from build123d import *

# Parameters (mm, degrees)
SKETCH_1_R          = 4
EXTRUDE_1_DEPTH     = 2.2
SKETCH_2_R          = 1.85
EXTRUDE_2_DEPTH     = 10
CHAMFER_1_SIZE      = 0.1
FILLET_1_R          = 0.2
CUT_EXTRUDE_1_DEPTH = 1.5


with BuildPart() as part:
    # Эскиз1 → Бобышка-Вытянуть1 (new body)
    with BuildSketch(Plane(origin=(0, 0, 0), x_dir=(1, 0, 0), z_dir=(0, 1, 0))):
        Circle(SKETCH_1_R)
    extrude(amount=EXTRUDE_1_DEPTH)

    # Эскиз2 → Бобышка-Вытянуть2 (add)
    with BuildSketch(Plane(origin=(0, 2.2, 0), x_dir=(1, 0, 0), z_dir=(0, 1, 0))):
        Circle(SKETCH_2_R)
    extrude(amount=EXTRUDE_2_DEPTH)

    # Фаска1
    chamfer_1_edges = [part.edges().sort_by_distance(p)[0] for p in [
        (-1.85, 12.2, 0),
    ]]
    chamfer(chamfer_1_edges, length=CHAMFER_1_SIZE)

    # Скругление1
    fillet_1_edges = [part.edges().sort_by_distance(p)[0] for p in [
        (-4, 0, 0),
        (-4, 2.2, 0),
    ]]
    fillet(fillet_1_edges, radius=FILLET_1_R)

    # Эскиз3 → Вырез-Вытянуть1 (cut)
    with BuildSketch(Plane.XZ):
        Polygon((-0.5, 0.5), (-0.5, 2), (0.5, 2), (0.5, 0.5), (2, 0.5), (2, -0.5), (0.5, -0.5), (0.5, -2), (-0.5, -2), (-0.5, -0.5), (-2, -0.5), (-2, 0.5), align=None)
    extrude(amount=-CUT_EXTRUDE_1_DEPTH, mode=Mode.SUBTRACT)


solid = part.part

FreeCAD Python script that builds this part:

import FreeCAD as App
import Part
import Sketcher
from FreeCAD import Vector


def edges_at(feature, points):
    """Names of the edges that pass closest to the given points."""
    edges = feature.Shape.Edges
    near = lambda p: min(range(len(edges)), key=lambda i: edges[i].distToShape(Part.Vertex(*p))[0])
    return sorted({f"Edge{near(p) + 1}" for p in points})


def add_polygon(sketch, points):
    """Adds a closed chain of lines whose ends are joined by coincident constraints."""
    first, n = sketch.GeometryCount, len(points)
    for a, b in zip(points, points[1:] + points[:1]):
        sketch.addGeometry(Part.LineSegment(App.Vector(*a, 0), App.Vector(*b, 0)), False)
    for i in range(n):
        sketch.addConstraint(Sketcher.Constraint("Coincident", first + i, 2, first + (i + 1) % n, 1))

doc = App.newDocument("Part")
body = doc.addObject("PartDesign::Body", "Body")

sketch1 = body.newObject("Sketcher::SketchObject", "Sketch")
sketch1.AttachmentSupport = (doc.getObject("XZ_Plane"), [""])
sketch1.MapMode = "FlatFace"
sketch1.addGeometry(Part.Circle(Vector(0, 0, 0), Vector(0, 0, 1), 4), False)
sketch1.addConstraint([
    Sketcher.Constraint("Coincident", 0, 3, -1, 1),
    Sketcher.Constraint("Diameter", 0, 8.0),
])
pad1 = body.newObject("PartDesign::Pad", "Pad")
pad1.Profile = sketch1
pad1.Length = 2.2
pad1.Reversed = True

sketch2 = body.newObject("Sketcher::SketchObject", "Sketch001")
sketch2.AttachmentSupport = (doc.getObject("XZ_Plane"), [""])
sketch2.MapMode = "FlatFace"
sketch2.AttachmentOffset = App.Placement(Vector(0, 0, -2.2), App.Rotation())
sketch2.addGeometry(Part.Circle(Vector(0, 0, 0), Vector(0, 0, 1), 1.9), False)
sketch2.addConstraint([
    Sketcher.Constraint("Coincident", 0, 3, -1, 1),
    Sketcher.Constraint("Diameter", 0, 3.7),
])
pad2 = body.newObject("PartDesign::Pad", "Pad001")
pad2.Profile = sketch2
pad2.Length = 10
pad2.Reversed = True
doc.recompute()

chamfer = body.newObject("PartDesign::Chamfer", "Chamfer")
chamfer.Base = (pad2, edges_at(pad2, [(-1.85, 12.2, 0)]))
chamfer.Size = 0.1
doc.recompute()

fillet = body.newObject("PartDesign::Fillet", "Fillet")
fillet.Base = (chamfer, edges_at(chamfer, [(-4, 0, 0), (-4, 2.2, 0)]))
fillet.Radius = 0.2

sketch3 = body.newObject("Sketcher::SketchObject", "Sketch002")
sketch3.AttachmentSupport = (doc.getObject("XZ_Plane"), [""])
sketch3.MapMode = "FlatFace"
add_polygon(sketch3, [(-0.5, 2), (-0.5, 0.5), (-2, 0.5), (-2, -0.5), (-0.5, -0.5), (-0.5, -2), (0.5, -2), (0.5, -0.5), (2, -0.5), (2, 0.5), (0.5, 0.5), (0.5, 2)])
sketch3.addConstraint([
    Sketcher.Constraint("Vertical", 0),
    Sketcher.Constraint("Horizontal", 1),
    Sketcher.Constraint("Vertical", 2),
    Sketcher.Constraint("Horizontal", 3),
    Sketcher.Constraint("Vertical", 4),
    Sketcher.Constraint("Horizontal", 5),
    Sketcher.Constraint("Vertical", 6),
    Sketcher.Constraint("Horizontal", 7),
    Sketcher.Constraint("Vertical", 8),
    Sketcher.Constraint("Horizontal", 9),
    Sketcher.Constraint("Vertical", 10),
    Sketcher.Constraint("Horizontal", 11),
    Sketcher.Constraint("Symmetric", 0, 2, 6, 2, -1, 1),
    Sketcher.Constraint("Symmetric", 2, 2, 8, 2, -1, 1),
    Sketcher.Constraint("Symmetric", 4, 2, 10, 2, -1, 1),
    Sketcher.Constraint("Symmetric", 3, 2, 6, 2, -2),
    Sketcher.Constraint("Equal", 9, 0),
    Sketcher.Constraint("Equal", 11, 2),
    Sketcher.Constraint("DistanceX", 5, 1, 5, 2, 1.0),
    Sketcher.Constraint("DistanceX", 1, 2, 1, 1, 1.5),
])
pocket1 = body.newObject("PartDesign::Pocket", "Pocket")
pocket1.Profile = sketch3
pocket1.Length = 1.5

doc.recompute()
